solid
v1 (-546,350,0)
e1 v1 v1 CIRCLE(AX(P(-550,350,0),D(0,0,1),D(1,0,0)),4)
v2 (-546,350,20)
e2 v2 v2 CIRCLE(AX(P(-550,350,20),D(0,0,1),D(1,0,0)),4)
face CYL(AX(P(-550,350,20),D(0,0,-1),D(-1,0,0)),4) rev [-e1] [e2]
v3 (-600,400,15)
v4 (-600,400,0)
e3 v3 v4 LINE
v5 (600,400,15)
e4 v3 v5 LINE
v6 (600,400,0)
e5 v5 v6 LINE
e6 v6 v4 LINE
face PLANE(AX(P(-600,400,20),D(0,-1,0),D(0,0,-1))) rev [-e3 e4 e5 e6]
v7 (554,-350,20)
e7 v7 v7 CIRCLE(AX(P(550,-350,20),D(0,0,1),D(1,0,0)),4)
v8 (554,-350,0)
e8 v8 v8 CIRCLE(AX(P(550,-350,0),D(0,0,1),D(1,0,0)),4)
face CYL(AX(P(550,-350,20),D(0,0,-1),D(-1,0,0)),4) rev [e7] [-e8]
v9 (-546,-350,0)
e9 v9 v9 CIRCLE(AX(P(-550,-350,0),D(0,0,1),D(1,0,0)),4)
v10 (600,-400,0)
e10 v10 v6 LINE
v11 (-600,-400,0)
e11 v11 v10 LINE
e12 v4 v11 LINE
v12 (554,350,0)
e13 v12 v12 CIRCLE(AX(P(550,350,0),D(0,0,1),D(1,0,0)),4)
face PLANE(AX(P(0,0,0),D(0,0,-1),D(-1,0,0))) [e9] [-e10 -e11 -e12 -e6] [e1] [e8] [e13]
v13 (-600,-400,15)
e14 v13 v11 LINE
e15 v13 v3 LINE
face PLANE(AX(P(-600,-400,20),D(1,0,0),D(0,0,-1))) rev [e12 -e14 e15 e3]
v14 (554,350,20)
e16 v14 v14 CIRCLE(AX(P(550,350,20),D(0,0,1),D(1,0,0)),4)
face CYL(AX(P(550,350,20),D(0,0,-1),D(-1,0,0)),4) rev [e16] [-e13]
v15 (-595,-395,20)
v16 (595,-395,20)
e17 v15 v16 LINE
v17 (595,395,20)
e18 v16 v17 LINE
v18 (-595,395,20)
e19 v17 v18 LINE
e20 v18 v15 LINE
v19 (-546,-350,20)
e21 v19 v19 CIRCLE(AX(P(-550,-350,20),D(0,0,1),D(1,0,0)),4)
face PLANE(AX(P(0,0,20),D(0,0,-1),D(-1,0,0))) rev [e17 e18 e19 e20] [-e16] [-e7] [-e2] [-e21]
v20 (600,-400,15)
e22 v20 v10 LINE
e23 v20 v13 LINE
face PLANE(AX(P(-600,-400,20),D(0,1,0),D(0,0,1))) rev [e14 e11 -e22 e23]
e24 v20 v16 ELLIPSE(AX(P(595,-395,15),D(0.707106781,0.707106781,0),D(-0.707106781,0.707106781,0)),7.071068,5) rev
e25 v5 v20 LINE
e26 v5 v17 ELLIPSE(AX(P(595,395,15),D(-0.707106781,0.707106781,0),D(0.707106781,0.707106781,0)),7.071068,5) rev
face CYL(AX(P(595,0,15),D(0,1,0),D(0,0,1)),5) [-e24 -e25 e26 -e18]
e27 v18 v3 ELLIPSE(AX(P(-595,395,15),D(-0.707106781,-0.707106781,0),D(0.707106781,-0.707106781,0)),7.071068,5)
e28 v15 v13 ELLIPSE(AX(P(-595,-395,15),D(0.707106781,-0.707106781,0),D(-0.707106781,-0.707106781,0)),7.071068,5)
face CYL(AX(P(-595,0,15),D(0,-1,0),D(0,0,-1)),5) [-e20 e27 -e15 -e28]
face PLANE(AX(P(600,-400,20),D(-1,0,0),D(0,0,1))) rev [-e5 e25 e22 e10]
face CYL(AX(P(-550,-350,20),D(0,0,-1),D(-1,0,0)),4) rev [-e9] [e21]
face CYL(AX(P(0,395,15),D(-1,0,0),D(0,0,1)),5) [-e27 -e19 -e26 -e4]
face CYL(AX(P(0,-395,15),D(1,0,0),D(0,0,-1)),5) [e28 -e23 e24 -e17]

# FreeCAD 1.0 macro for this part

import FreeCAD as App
import Part
import Sketcher

V = App.Vector
Q = App.Units.Quantity


def edges_at(feature, points):
    """Names of the edges that pass closest to the given points."""
    edges = feature.Shape.Edges
    near = lambda p: min(range(len(edges)), key=lambda i: edges[i].distToShape(Part.Vertex(*p))[0])
    return sorted({f"Edge{near(p) + 1}" for p in points})

doc = App.newDocument("Part")
body = doc.addObject("PartDesign::Body", "Body")

# Sketch on XY plane
sketch1 = doc.addObject("Sketcher::SketchObject", "Sketch")
body.addObject(sketch1)
sketch1.AttachmentSupport = (doc.XY_Plane, [""])
sketch1.MapMode = "FlatFace"
sketch1.addGeometry(Part.LineSegment(V(-600, 400, 0), V(-600, -400, 0)), False)
sketch1.addGeometry(Part.LineSegment(V(-600, -400, 0), V(600, -400, 0)), False)
sketch1.addGeometry(Part.LineSegment(V(600, -400, 0), V(600, 400, 0)), False)
sketch1.addGeometry(Part.LineSegment(V(600, 400, 0), V(-600, 400, 0)), False)
sketch1.addConstraint(Sketcher.Constraint("Coincident", 0, 2, 1, 1))
sketch1.addConstraint(Sketcher.Constraint("Coincident", 1, 2, 2, 1))
sketch1.addConstraint(Sketcher.Constraint("Coincident", 2, 2, 3, 1))
sketch1.addConstraint(Sketcher.Constraint("Coincident", 3, 2, 0, 1))
sketch1.addConstraint(Sketcher.Constraint("Vertical", 0))
sketch1.addConstraint(Sketcher.Constraint("Horizontal", 1))
sketch1.addConstraint(Sketcher.Constraint("Vertical", 2))
sketch1.addConstraint(Sketcher.Constraint("Horizontal", 3))
sketch1.addConstraint(Sketcher.Constraint("Symmetric", 0, 2, 2, 2, -1, 1))
sketch1.addConstraint(Sketcher.Constraint("DistanceX", 1, 1, 1, 2, Q("1200 mm")))
sketch1.addConstraint(Sketcher.Constraint("DistanceY", 0, 2, 0, 1, Q("800 mm")))
pad1 = doc.addObject("PartDesign::Pad", "Pad")
body.addObject(pad1)
pad1.Profile = sketch1
pad1.Length = 20
doc.recompute()

fillet = doc.addObject("PartDesign::Fillet", "Fillet")
body.addObject(fillet)
fillet.Base = (pad1, edges_at(pad1, [
    (-600, 0, 20),
    (0, -400, 20),
    (600, 0, 20),
    (0, 400, 20),
]))
fillet.Radius = 5

# Sketch on XY plane
sketch2 = doc.addObject("Sketcher::SketchObject", "Sketch001")
body.addObject(sketch2)
sketch2.AttachmentSupport = (doc.XY_Plane, [""])
sketch2.MapMode = "FlatFace"
sketch2.addGeometry(Part.Circle(V(550, 350, 0), V(0, 0, 1), 4), False)
sketch2.addConstraint(Sketcher.Constraint("Diameter", 0, Q("8 mm")))
sketch2.addConstraint(Sketcher.Constraint("DistanceX", -1, 1, 0, 3, Q("550 mm")))
sketch2.addConstraint(Sketcher.Constraint("DistanceY", -1, 1, 0, 3, Q("350 mm")))
pocket1 = doc.addObject("PartDesign::Pocket", "Pocket")
body.addObject(pocket1)
pocket1.Profile = sketch2
pocket1.Length = 20
pocket1.Reversed = True

# Sketch on XY plane
sketch3 = doc.addObject("Sketcher::SketchObject", "Sketch002")
body.addObject(sketch3)
sketch3.AttachmentSupport = (doc.XY_Plane, [""])
sketch3.MapMode = "FlatFace"
sketch3.addGeometry(Part.Circle(V(550, -350, 0), V(0, 0, 1), 4), False)
sketch3.addConstraint(Sketcher.Constraint("Diameter", 0, Q("8 mm")))
sketch3.addConstraint(Sketcher.Constraint("DistanceX", -1, 1, 0, 3, Q("550 mm")))
sketch3.addConstraint(Sketcher.Constraint("DistanceY", 0, 3, -1, 1, Q("350 mm")))
pocket2 = doc.addObject("PartDesign::Pocket", "Pocket001")
body.addObject(pocket2)
pocket2.Profile = sketch3
pocket2.Length = 20
pocket2.Reversed = True

# Sketch on XY plane
sketch4 = doc.addObject("Sketcher::SketchObject", "Sketch003")
body.addObject(sketch4)
sketch4.AttachmentSupport = (doc.XY_Plane, [""])
sketch4.MapMode = "FlatFace"
sketch4.addGeometry(Part.Circle(V(-550, 350, 0), V(0, 0, 1), 4), False)
sketch4.addConstraint(Sketcher.Constraint("Diameter", 0, Q("8 mm")))
sketch4.addConstraint(Sketcher.Constraint("DistanceX", 0, 3, -1, 1, Q("550 mm")))
sketch4.addConstraint(Sketcher.Constraint("DistanceY", -1, 1, 0, 3, Q("350 mm")))
pocket3 = doc.addObject("PartDesign::Pocket", "Pocket002")
body.addObject(pocket3)
pocket3.Profile = sketch4
pocket3.Length = 20
pocket3.Reversed = True

# Sketch on XY plane
sketch5 = doc.addObject("Sketcher::SketchObject", "Sketch004")
body.addObject(sketch5)
sketch5.AttachmentSupport = (doc.XY_Plane, [""])
sketch5.MapMode = "FlatFace"
sketch5.addGeometry(Part.Circle(V(-550, -350, 0), V(0, 0, 1), 4), False)
sketch5.addConstraint(Sketcher.Constraint("Diameter", 0, Q("8 mm")))
sketch5.addConstraint(Sketcher.Constraint("DistanceX", 0, 3, -1, 1, Q("550 mm")))
sketch5.addConstraint(Sketcher.Constraint("DistanceY", 0, 3, -1, 1, Q("350 mm")))
pocket4 = doc.addObject("PartDesign::Pocket", "Pocket003")
body.addObject(pocket4)
pocket4.Profile = sketch5
pocket4.Length = 20
pocket4.Reversed = True

doc.recompute()
